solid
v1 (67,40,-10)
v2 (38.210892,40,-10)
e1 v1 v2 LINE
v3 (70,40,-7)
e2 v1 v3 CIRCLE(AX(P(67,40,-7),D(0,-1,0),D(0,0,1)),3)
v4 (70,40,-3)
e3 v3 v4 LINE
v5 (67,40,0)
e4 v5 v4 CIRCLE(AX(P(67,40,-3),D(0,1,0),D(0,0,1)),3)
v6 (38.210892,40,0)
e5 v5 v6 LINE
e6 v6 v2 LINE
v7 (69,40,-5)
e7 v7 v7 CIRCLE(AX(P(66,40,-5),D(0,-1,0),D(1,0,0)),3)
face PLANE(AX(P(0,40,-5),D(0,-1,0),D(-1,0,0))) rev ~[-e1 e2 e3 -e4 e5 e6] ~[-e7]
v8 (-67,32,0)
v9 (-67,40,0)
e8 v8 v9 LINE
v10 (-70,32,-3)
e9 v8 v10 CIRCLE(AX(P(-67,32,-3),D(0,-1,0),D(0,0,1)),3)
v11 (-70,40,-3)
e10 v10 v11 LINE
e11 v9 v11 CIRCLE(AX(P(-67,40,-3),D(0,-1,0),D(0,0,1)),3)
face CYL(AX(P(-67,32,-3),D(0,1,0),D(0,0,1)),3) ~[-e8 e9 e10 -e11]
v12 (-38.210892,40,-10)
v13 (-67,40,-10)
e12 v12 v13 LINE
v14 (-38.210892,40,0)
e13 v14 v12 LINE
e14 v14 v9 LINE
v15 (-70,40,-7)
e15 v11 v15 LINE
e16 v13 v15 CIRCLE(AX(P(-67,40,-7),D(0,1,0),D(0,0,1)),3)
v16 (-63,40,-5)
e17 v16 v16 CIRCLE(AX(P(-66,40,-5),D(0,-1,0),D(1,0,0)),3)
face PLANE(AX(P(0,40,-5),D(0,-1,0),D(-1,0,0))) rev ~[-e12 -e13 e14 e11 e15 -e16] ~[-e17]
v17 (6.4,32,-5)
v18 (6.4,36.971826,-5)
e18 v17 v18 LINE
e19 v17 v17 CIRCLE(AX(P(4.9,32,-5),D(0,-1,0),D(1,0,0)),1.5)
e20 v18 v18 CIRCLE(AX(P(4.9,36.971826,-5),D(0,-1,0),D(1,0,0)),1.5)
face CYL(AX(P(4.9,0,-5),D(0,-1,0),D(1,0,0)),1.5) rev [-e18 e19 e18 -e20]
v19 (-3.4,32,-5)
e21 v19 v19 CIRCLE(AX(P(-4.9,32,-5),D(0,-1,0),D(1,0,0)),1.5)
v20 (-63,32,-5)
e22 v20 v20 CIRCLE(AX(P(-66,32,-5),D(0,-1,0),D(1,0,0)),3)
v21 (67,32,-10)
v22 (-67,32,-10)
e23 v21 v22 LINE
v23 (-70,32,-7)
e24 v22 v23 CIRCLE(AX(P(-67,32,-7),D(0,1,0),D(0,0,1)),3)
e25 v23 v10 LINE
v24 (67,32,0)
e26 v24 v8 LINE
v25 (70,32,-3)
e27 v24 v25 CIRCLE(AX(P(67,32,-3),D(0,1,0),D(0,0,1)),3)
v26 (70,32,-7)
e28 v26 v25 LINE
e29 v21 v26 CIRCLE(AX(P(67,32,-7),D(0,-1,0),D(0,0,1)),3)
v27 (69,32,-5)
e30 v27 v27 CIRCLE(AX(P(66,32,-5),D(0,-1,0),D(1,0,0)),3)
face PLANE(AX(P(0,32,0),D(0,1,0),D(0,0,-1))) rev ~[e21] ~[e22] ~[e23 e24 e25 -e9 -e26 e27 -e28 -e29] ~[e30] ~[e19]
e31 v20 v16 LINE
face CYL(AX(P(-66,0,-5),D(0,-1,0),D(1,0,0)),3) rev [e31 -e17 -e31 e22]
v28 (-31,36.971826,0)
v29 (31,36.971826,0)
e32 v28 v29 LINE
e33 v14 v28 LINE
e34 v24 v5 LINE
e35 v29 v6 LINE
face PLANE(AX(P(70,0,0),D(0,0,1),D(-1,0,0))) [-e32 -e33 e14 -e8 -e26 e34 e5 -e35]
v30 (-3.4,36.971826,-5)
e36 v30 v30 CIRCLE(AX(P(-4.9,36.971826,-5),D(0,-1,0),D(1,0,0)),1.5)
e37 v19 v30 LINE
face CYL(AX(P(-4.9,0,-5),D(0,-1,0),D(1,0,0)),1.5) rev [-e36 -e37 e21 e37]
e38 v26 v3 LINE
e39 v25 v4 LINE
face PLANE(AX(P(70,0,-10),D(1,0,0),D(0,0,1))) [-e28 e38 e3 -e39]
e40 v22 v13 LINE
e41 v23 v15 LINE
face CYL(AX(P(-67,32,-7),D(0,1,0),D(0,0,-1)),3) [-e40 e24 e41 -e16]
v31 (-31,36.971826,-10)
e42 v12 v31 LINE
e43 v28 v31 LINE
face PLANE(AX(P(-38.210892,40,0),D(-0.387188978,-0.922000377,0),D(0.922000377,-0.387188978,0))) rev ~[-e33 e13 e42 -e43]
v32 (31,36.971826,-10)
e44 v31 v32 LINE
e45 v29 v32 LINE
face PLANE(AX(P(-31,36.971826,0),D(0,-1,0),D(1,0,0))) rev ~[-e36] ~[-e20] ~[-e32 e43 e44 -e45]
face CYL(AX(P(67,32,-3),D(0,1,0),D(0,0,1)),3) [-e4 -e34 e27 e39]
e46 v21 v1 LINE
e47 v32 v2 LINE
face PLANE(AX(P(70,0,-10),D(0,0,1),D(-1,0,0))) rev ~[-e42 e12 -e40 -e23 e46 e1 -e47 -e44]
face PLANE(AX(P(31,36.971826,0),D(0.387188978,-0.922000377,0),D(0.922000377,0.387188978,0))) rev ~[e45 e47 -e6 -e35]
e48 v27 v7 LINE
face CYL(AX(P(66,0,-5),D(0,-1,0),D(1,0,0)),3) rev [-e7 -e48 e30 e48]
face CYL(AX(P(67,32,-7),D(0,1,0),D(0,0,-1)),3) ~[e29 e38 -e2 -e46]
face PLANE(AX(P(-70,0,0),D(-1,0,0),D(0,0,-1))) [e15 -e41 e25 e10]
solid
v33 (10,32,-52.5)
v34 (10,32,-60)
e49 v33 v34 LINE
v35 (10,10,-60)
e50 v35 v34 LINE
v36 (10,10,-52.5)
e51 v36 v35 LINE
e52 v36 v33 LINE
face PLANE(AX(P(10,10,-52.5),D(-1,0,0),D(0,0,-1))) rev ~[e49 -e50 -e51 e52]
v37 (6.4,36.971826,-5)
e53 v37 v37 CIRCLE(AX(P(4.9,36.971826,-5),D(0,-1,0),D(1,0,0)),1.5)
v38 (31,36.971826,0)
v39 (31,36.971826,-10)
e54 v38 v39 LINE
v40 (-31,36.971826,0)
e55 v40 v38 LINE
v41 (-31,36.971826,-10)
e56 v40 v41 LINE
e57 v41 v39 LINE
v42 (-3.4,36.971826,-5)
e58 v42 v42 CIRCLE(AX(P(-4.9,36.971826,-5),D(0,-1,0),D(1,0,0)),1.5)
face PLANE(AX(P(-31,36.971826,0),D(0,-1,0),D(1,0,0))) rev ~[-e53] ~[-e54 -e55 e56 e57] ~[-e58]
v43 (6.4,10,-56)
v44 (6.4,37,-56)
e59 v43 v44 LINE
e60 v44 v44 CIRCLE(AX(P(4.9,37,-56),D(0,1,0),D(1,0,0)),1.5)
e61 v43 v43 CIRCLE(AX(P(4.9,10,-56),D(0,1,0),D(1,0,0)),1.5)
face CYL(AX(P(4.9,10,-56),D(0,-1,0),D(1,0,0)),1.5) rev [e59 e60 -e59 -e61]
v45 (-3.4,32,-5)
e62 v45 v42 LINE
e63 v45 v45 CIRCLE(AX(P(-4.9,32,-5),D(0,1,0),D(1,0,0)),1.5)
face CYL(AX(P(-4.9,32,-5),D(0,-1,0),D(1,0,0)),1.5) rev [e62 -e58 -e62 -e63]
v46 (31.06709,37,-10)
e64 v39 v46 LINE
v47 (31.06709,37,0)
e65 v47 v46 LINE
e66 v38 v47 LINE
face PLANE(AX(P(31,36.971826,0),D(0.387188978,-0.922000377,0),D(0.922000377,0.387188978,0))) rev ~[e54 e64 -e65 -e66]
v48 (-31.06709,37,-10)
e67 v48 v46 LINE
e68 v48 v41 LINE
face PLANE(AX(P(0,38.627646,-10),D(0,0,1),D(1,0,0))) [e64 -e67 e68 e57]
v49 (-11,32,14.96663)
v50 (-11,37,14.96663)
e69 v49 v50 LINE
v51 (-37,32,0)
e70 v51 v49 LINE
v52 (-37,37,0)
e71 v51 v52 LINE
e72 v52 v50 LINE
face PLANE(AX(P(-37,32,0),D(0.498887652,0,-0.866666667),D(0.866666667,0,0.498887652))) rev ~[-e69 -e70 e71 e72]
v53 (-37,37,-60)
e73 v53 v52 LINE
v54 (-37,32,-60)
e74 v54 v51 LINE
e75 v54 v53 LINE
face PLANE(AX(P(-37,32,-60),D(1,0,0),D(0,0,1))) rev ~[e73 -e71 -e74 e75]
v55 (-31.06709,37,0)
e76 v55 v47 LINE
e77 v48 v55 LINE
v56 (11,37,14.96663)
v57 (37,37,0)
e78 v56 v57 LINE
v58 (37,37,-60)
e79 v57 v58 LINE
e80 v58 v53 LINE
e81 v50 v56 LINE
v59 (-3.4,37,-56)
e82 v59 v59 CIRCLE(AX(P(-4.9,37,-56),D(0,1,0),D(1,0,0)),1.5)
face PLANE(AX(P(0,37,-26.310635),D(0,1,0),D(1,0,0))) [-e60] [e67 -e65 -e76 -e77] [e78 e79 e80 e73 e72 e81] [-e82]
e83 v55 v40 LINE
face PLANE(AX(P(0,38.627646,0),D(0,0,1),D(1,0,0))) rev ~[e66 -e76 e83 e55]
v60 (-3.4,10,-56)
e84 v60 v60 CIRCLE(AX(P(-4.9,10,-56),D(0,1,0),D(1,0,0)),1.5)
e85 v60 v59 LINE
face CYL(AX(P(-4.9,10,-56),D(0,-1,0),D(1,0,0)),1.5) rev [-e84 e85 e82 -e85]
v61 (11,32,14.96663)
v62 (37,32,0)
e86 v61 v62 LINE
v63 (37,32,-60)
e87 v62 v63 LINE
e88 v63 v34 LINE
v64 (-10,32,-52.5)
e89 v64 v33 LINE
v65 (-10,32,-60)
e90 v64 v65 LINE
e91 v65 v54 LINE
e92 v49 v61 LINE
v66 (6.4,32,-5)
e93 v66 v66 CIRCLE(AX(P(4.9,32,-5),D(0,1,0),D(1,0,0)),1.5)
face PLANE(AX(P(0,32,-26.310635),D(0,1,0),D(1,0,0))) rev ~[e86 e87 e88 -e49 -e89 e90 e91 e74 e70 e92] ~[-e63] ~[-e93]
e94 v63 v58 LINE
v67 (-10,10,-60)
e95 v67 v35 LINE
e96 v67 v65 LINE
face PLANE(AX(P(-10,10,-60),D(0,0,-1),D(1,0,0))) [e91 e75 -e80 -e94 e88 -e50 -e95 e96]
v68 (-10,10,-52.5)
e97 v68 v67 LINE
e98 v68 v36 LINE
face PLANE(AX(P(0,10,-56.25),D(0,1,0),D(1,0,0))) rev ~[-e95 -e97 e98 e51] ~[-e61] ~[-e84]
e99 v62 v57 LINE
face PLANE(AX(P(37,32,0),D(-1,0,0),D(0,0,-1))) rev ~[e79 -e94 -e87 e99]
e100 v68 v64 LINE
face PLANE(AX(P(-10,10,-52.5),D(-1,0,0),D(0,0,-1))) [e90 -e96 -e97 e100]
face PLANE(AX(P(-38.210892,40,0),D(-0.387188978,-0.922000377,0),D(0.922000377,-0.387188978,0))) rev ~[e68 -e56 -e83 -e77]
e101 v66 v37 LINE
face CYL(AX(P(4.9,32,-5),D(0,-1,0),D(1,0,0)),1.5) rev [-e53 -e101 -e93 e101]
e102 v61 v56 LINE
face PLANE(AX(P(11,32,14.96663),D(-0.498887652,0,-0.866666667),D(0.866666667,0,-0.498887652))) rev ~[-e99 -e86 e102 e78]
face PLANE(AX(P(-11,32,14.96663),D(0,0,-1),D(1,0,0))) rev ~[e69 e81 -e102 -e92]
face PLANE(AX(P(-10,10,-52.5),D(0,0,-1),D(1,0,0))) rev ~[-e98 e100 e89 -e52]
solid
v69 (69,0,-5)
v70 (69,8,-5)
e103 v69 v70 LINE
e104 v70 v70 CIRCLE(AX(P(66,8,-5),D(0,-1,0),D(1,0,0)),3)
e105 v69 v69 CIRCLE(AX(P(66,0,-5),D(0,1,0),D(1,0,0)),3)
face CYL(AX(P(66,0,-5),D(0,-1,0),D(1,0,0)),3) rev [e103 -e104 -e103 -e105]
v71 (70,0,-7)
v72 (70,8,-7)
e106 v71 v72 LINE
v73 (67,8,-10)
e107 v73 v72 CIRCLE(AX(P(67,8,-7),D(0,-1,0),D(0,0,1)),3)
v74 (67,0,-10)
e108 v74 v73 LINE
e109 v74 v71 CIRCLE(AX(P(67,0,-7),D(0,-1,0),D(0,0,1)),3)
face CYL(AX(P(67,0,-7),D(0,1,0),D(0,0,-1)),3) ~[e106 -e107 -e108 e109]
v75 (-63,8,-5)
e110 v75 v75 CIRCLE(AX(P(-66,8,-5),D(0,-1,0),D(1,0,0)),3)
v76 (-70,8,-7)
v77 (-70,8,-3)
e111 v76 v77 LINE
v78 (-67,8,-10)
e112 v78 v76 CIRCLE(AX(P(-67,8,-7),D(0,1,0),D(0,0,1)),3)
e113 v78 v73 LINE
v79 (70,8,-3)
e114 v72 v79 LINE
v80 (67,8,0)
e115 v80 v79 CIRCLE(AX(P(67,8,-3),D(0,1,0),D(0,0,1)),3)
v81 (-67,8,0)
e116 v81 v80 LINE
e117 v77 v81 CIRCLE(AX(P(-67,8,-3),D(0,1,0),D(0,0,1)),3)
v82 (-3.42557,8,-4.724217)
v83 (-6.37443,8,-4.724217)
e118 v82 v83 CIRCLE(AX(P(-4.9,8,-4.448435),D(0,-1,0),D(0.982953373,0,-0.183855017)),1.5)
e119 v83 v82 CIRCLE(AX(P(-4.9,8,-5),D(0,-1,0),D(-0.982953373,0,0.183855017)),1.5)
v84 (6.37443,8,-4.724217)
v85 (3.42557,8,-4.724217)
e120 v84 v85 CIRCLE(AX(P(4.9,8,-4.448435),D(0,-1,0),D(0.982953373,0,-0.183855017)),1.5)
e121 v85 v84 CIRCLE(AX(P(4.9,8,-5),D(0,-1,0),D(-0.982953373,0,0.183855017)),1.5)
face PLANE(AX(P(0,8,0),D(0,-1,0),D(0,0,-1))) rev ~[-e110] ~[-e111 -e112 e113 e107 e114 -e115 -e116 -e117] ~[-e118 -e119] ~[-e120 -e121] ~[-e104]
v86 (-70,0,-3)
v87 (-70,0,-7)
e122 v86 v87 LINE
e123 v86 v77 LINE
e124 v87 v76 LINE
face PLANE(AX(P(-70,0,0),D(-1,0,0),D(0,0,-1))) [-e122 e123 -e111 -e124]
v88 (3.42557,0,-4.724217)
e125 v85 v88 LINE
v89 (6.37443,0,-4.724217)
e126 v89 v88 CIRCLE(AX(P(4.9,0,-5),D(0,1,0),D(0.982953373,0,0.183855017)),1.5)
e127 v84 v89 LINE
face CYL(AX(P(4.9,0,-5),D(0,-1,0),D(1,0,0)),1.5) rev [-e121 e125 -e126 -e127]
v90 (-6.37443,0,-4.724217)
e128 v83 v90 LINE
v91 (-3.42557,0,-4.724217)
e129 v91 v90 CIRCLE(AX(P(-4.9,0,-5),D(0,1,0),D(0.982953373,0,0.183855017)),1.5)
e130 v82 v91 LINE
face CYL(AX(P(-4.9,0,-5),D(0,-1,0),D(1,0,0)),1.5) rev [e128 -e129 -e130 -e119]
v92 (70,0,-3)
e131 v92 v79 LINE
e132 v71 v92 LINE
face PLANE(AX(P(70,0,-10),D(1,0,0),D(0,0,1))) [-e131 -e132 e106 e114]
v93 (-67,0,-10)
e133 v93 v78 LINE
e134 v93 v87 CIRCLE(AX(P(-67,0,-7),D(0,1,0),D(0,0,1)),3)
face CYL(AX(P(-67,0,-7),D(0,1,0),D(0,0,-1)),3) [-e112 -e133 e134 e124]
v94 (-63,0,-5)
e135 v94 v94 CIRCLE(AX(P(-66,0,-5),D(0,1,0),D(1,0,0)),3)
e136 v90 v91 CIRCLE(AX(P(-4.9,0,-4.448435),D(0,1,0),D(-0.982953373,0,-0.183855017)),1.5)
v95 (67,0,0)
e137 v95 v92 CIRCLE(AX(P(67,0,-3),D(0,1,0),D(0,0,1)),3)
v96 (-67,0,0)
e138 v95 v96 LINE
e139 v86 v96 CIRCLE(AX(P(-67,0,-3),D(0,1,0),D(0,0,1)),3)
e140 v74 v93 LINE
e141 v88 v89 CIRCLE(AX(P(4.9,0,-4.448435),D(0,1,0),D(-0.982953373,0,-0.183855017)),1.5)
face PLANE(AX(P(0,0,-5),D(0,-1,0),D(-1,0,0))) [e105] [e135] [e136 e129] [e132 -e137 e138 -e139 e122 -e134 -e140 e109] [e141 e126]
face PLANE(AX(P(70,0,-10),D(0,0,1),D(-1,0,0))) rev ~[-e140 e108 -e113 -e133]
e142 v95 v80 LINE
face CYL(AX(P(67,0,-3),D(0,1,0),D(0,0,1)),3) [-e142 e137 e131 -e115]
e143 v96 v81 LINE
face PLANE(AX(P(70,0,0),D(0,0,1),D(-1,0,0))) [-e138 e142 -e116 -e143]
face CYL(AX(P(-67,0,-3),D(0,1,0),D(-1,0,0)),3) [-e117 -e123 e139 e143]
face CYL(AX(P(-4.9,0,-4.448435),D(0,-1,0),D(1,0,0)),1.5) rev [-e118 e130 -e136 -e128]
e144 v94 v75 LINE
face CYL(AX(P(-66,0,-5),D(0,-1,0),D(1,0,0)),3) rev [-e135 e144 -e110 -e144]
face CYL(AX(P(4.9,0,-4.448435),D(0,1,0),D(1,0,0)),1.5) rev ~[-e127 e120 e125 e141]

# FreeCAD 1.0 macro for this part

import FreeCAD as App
import Part
import Sketcher
from FreeCAD import Vector
Q = App.Units.Quantity


def edges_at(feature, points):
    """Names of the edges that pass closest to the given points."""
    edges = feature.Shape.Edges
    near = lambda p: min(range(len(edges)), key=lambda i: edges[i].distToShape(Part.Vertex(*p))[0])
    return sorted({f"Edge{near(p) + 1}" for p in points})


def add_polygon(sketch, points):
    """Adds a closed chain of lines whose ends are joined by coincident constraints."""
    first, n = sketch.GeometryCount, len(points)
    for a, b in zip(points, points[1:] + points[:1]):
        sketch.addGeometry(Part.LineSegment(App.Vector(*a, 0), App.Vector(*b, 0)), False)
    for i in range(n):
        sketch.addConstraint(Sketcher.Constraint("Coincident", first + i, 2, first + (i + 1) % n, 1))

doc = App.newDocument("Part")
body = doc.addObject("PartDesign::Body", "Body")
body.AllowCompound = True

sketch1 = doc.addObject("Sketcher::SketchObject", "Sketch")
body.addObject(sketch1)
sketch1.AttachmentSupport = (doc.XZ_Plane, [""])
sketch1.MapMode = "FlatFace"
add_polygon(sketch1, [(70, -10), (-70, -10), (-70, 0), (70, 0)])
sketch1.addGeometry(Part.Circle(Vector(4.9, -5, 0), Vector(0, 0, 1), 1.5), False)
sketch1.addGeometry(Part.Circle(Vector(-4.9, -5, 0), Vector(0, 0, 1), 1.5), False)
sketch1.addConstraint(Sketcher.Constraint("Horizontal", 0))
sketch1.addConstraint(Sketcher.Constraint("Vertical", 1))
sketch1.addConstraint(Sketcher.Constraint("Horizontal", 2))
sketch1.addConstraint(Sketcher.Constraint("Vertical", 3))
sketch1.addConstraint(Sketcher.Constraint("Equal", 4, 5))
sketch1.addConstraint(Sketcher.Constraint("Symmetric", 1, 2, 2, 2, -1, 1))
sketch1.addConstraint(Sketcher.Constraint("Symmetric", 4, 3, 5, 3, -2))
sketch1.addConstraint(Sketcher.Constraint("Diameter", 4, Q("3 mm")))
sketch1.addConstraint(Sketcher.Constraint("DistanceX", 0, 2, 0, 1, Q("140 mm")))
sketch1.addConstraint(Sketcher.Constraint("DistanceY", 1, 1, 1, 2, Q("10 mm")))
sketch1.addConstraint(Sketcher.Constraint("DistanceY", 4, 3, -1, 1, Q("5 mm")))
sketch1.addConstraint(Sketcher.Constraint("DistanceX", -1, 1, 4, 3, Q("4.9 mm")))
pad1 = doc.addObject("PartDesign::Pad", "Pad")
body.addObject(pad1)
pad1.Profile = sketch1
pad1.Length = 40
pad1.Reversed = True

sketch2 = doc.addObject("Sketcher::SketchObject", "Sketch001")
body.addObject(sketch2)
sketch2.AttachmentSupport = (doc.YZ_Plane, [""])
sketch2.MapMode = "FlatFace"
add_polygon(sketch2, [(32, 0), (8, 0), (8, -10), (32, -10)])
sketch2.addConstraint(Sketcher.Constraint("Horizontal", 0))
sketch2.addConstraint(Sketcher.Constraint("Vertical", 1))
sketch2.addConstraint(Sketcher.Constraint("Horizontal", 2))
sketch2.addConstraint(Sketcher.Constraint("Vertical", 3))
sketch2.addConstraint(Sketcher.Constraint("PointOnObject", 0, 2, -1))
sketch2.addConstraint(Sketcher.Constraint("DistanceX", 0, 2, 0, 1, Q("24 mm")))
sketch2.addConstraint(Sketcher.Constraint("DistanceY", 1, 2, 1, 1, Q("10 mm")))
sketch2.addConstraint(Sketcher.Constraint("DistanceX", -1, 1, 0, 2, Q("8 mm")))
pocket1 = doc.addObject("PartDesign::Pocket", "Pocket")
body.addObject(pocket1)
pocket1.Profile = sketch2
pocket1.Type = "ThroughAll"
pocket1.Midplane = True
doc.recompute()

fillet = doc.addObject("PartDesign::Fillet", "Fillet")
body.addObject(fillet)
fillet.Base = (pocket1, edges_at(pocket1, [
    (70, 36, -10),
    (-70, 36, -10),
    (-70, 36, 0),
    (70, 36, 0),
]))
fillet.Radius = 3
doc.recompute()

fillet2 = doc.addObject("PartDesign::Fillet", "Fillet001")
body.addObject(fillet2)
fillet2.Base = (fillet, edges_at(fillet, [
    (70, 4, -10),
    (70, 4, 0),
    (-70, 4, 0),
    (-70, 4, -10),
]))
fillet2.Radius = 3

sketch3 = doc.addObject("Sketcher::SketchObject", "Sketch002")
body.addObject(sketch3)
sketch3.AttachmentSupport = (doc.XZ_Plane, [""])
sketch3.MapMode = "FlatFace"
sketch3.addGeometry(Part.Circle(Vector(-4.9, -4.448435, 0), Vector(0, 0, 1), 1.5), False)
sketch3.addGeometry(Part.Circle(Vector(4.9, -4.448435, 0), Vector(0, 0, 1), 1.5), False)
sketch3.addConstraint(Sketcher.Constraint("Equal", 0, 1))
sketch3.addConstraint(Sketcher.Constraint("Symmetric", 0, 3, 1, 3, -2))
sketch3.addConstraint(Sketcher.Constraint("Diameter", 0, Q("3 mm")))
sketch3.addConstraint(Sketcher.Constraint("DistanceX", 0, 3, -1, 1, Q("4.9 mm")))
sketch3.addConstraint(Sketcher.Constraint("DistanceY", 0, 3, -1, 1, Q("4.448435 mm")))
pocket2 = doc.addObject("PartDesign::Pocket", "Pocket001")
body.addObject(pocket2)
pocket2.Profile = sketch3
pocket2.Length = 22
pocket2.Midplane = True

sketch4 = doc.addObject("Sketcher::SketchObject", "Sketch003")
body.addObject(sketch4)
sketch4.AttachmentSupport = (doc.XZ_Plane, [""])
sketch4.MapMode = "FlatFace"
sketch4.addGeometry(Part.Circle(Vector(-66, -5, 0), Vector(0, 0, 1), 3), False)
sketch4.addGeometry(Part.Circle(Vector(66, -5, 0), Vector(0, 0, 1), 3), False)
sketch4.addConstraint(Sketcher.Constraint("Equal", 0, 1))
sketch4.addConstraint(Sketcher.Constraint("Symmetric", 0, 3, 1, 3, -2))
sketch4.addConstraint(Sketcher.Constraint("Diameter", 0, Q("6 mm")))
sketch4.addConstraint(Sketcher.Constraint("DistanceX", 0, 3, -1, 1, Q("66 mm")))
sketch4.addConstraint(Sketcher.Constraint("DistanceY", 0, 3, -1, 1, Q("5 mm")))
pocket3 = doc.addObject("PartDesign::Pocket", "Pocket002")
body.addObject(pocket3)
pocket3.Profile = sketch4
pocket3.Type = "ThroughAll"
pocket3.Midplane = True
body2 = doc.addObject("PartDesign::Body", "Body001")

sketch5 = doc.addObject("Sketcher::SketchObject", "Sketch004")
body2.addObject(sketch5)
sketch5.AttachmentSupport = (doc.getObject("XZ_Plane001"), [""])
sketch5.MapMode = "FlatFace"
sketch5.AttachmentOffset = App.Placement(Vector(0, 0, -32), App.Rotation())
add_polygon(sketch5, [(-37, 0), (-11, 14.96663), (11, 14.96663), (37, 0), (37, -60), (-37, -60)])
sketch5.addGeometry(Part.Circle(Vector(-4.9, -5, 0), Vector(0, 0, 1), 1.5), False)
sketch5.addGeometry(Part.Circle(Vector(4.9, -5, 0), Vector(0, 0, 1), 1.5), False)
sketch5.addGeometry(Part.Circle(Vector(-4.9, -56, 0), Vector(0, 0, 1), 1.5), False)
sketch5.addGeometry(Part.Circle(Vector(4.9, -56, 0), Vector(0, 0, 1), 1.5), False)
sketch5.addConstraint(Sketcher.Constraint("Horizontal", 1))
sketch5.addConstraint(Sketcher.Constraint("Vertical", 3))
sketch5.addConstraint(Sketcher.Constraint("Horizontal", 4))
sketch5.addConstraint(Sketcher.Constraint("Vertical", 5))
sketch5.addConstraint(Sketcher.Constraint("Equal", 6, 7))
sketch5.addConstraint(Sketcher.Constraint("Equal", 7, 8))
sketch5.addConstraint(Sketcher.Constraint("Equal", 8, 9))
sketch5.addConstraint(Sketcher.Constraint("Symmetric", 2, 2, 5, 2, -1, 1))
sketch5.addConstraint(Sketcher.Constraint("Symmetric", 6, 3, 7, 3, -2))
sketch5.addConstraint(Sketcher.Constraint("Symmetric", 8, 3, 9, 3, -2))
sketch5.addConstraint(Sketcher.Constraint("PointOnObject", 2, 2, -1))
sketch5.addConstraint(Sketcher.Constraint("Vertical", 6, 3, 8, 3))
sketch5.addConstraint(Sketcher.Constraint("Equal", 0, 2))
sketch5.addConstraint(Sketcher.Constraint("Diameter", 6, Q("3 mm")))
sketch5.addConstraint(Sketcher.Constraint("DistanceX", 1, 1, 1, 2, Q("22 mm")))
sketch5.addConstraint(Sketcher.Constraint("DistanceX", 4, 2, 4, 1, Q("74 mm")))
sketch5.addConstraint(Sketcher.Constraint("DistanceY", 3, 2, 3, 1, Q("60 mm")))
sketch5.addConstraint(Sketcher.Constraint("Distance", 0, Q("30 mm")))
sketch5.addConstraint(Sketcher.Constraint("DistanceY", 6, 3, -1, 1, Q("5 mm")))
sketch5.addConstraint(Sketcher.Constraint("DistanceY", 8, 3, -1, 1, Q("56 mm")))
sketch5.addConstraint(Sketcher.Constraint("DistanceX", 6, 3, -1, 1, Q("4.9 mm")))
pad2 = doc.addObject("PartDesign::Pad", "Pad001")
body2.addObject(pad2)
pad2.Profile = sketch5
pad2.Length = 5
pad2.Reversed = True

sketch6 = doc.addObject("Sketcher::SketchObject", "Sketch005")
body2.addObject(sketch6)
sketch6.AttachmentSupport = (doc.getObject("XZ_Plane001"), [""])
sketch6.MapMode = "FlatFace"
sketch6.AttachmentOffset = App.Placement(Vector(0, 0, -10), App.Rotation())
add_polygon(sketch6, [(-10, -60), (-10, -52.5), (10, -52.5), (10, -60)])
sketch6.addGeometry(Part.Circle(Vector(-4.9, -56, 0), Vector(0, 0, 1), 1.5), False)
sketch6.addGeometry(Part.Circle(Vector(4.9, -56, 0), Vector(0, 0, 1), 1.5), False)
sketch6.addConstraint(Sketcher.Constraint("Vertical", 0))
sketch6.addConstraint(Sketcher.Constraint("Horizontal", 1))
sketch6.addConstraint(Sketcher.Constraint("Vertical", 2))
sketch6.addConstraint(Sketcher.Constraint("Horizontal", 3))
sketch6.addConstraint(Sketcher.Constraint("Equal", 4, 5))
sketch6.addConstraint(Sketcher.Constraint("Symmetric", 4, 3, 5, 3, -2))
sketch6.addConstraint(Sketcher.Constraint("Diameter", 4, Q("3 mm")))
sketch6.addConstraint(Sketcher.Constraint("DistanceX", 1, 1, 1, 2, Q("20 mm")))
sketch6.addConstraint(Sketcher.Constraint("DistanceY", 0, 1, 0, 2, Q("7.5 mm")))
sketch6.addConstraint(Sketcher.Constraint("DistanceY", 4, 3, -1, 1, Q("56 mm")))
sketch6.addConstraint(Sketcher.Constraint("DistanceX", 0, 2, -1, 1, Q("10 mm")))
sketch6.addConstraint(Sketcher.Constraint("DistanceY", 2, 2, -1, 1, Q("60 mm")))
sketch6.addConstraint(Sketcher.Constraint("DistanceX", 4, 3, -1, 1, Q("4.9 mm")))
pad3 = doc.addObject("PartDesign::Pad", "Pad002")
body2.addObject(pad3)
pad3.Profile = sketch6
pad3.Length = 22
pad3.Reversed = True
body3 = doc.addObject("PartDesign::Body", "Body002")

sketch7 = doc.addObject("Sketcher::SketchObject", "Sketch006")
body3.addObject(sketch7)
sketch7.AttachmentSupport = (doc.getObject("XY_Plane002"), [""])
sketch7.MapMode = "FlatFace"
add_polygon(sketch7, [(-38.210892, 40), (-31, 36.971826), (31, 36.971826), (38.210892, 40)])
sketch7.addConstraint(Sketcher.Constraint("Horizontal", 1))
sketch7.addConstraint(Sketcher.Constraint("Horizontal", 3))
sketch7.addConstraint(Sketcher.Constraint("Equal", 0, 2))
sketch7.addConstraint(Sketcher.Constraint("DistanceX", 1, 1, 1, 2, Q("62 mm")))
sketch7.addConstraint(Sketcher.Constraint("DistanceX", 0, 2, -1, 1, Q("31 mm")))
sketch7.addConstraint(Sketcher.Constraint("DistanceY", -1, 1, 2, 2, Q("40 mm")))
sketch7.addConstraint(Sketcher.Constraint("Distance", 0, Q("7.82092 mm")))
sketch7.addConstraint(Sketcher.Constraint("DistanceX", 3, 2, 3, 1, Q("76.421783 mm")))
pad4 = doc.addObject("PartDesign::Pad", "Pad003")
body3.addObject(pad4)
pad4.Profile = sketch7
pad4.Length = 10
pad4.Reversed = True
body.AllowCompound = True
doc.recompute()

body4 = doc.addObject("PartDesign::Body", "Body003")
body4.BaseFeature = body3
boolean = doc.addObject("PartDesign::Boolean", "Boolean")
body.addObject(boolean)
boolean.Type = "Cut"
boolean.addObjects([body4])
doc.recompute()

boolean2 = doc.addObject("PartDesign::Boolean", "Boolean001")
body2.addObject(boolean2)
boolean2.Type = "Cut"
boolean2.addObjects([body3])

doc.recompute()
